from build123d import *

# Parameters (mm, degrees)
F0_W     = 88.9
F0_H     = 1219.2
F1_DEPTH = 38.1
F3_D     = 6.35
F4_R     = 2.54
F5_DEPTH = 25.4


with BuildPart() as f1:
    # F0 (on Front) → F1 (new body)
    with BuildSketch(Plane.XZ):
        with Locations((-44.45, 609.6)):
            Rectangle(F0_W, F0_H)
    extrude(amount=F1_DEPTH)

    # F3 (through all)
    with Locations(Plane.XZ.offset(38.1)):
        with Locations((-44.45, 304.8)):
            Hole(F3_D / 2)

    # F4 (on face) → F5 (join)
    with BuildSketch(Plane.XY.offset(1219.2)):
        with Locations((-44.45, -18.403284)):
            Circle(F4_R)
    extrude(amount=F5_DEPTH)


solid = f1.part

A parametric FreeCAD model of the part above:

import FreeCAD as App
import Part
import Sketcher

V = App.Vector
Q = App.Units.Quantity

doc = App.newDocument("Part")
body = doc.addObject("PartDesign::Body", "Body")

# Sketch on XZ plane
sketch1 = body.newObject("Sketcher::SketchObject", "Sketch")
sketch1.AttachmentSupport = (doc.getObject("XZ_Plane"), [""])
sketch1.MapMode = "FlatFace"
sketch1.addGeometry(Part.LineSegment(V(-89, 1219, 0), V(-89, 0, 0)), False)
sketch1.addGeometry(Part.LineSegment(V(-89, 0, 0), V(0, 0, 0)), False)
sketch1.addGeometry(Part.LineSegment(V(0, 0, 0), V(0, 1219, 0)), False)
sketch1.addGeometry(Part.LineSegment(V(0, 1219, 0), V(-89, 1219, 0)), False)
sketch1.addConstraint(Sketcher.Constraint("Coincident", 0, 2, 1, 1))
sketch1.addConstraint(Sketcher.Constraint("Coincident", 1, 2, 2, 1))
sketch1.addConstraint(Sketcher.Constraint("Coincident", 2, 2, 3, 1))
sketch1.addConstraint(Sketcher.Constraint("Coincident", 3, 2, 0, 1))
sketch1.addConstraint(Sketcher.Constraint("Vertical", 0))
sketch1.addConstraint(Sketcher.Constraint("Horizontal", 1))
sketch1.addConstraint(Sketcher.Constraint("Vertical", 2))
sketch1.addConstraint(Sketcher.Constraint("Horizontal", 3))
sketch1.addConstraint(Sketcher.Constraint("Coincident", 1, 2, -1, 1))
sketch1.addConstraint(Sketcher.Constraint("DistanceY", 0, 2, 0, 1, Q("48 in")))
sketch1.addConstraint(Sketcher.Constraint("DistanceX", 1, 1, 1, 2, Q("3.5 in")))
pad1 = body.newObject("PartDesign::Pad", "Pad")
pad1.Profile = sketch1
pad1.Length = Q("1.5 in")

# Sketch on XZ plane
sketch2 = body.newObject("Sketcher::SketchObject", "Sketch001")
sketch2.AttachmentSupport = (doc.getObject("XZ_Plane"), [""])
sketch2.MapMode = "FlatFace"
sketch2.AttachmentOffset = App.Placement(V(0, 0, 1.5 * 25.4), App.Rotation())
sketch2.addGeometry(Part.Circle(V(-44.5, 304.8, 0), V(0, 0, 1), 3.2), False)
sketch2.addConstraint(Sketcher.Constraint("Diameter", 0, Q("0.25 in")))
sketch2.addConstraint(Sketcher.Constraint("DistanceY", -1, 1, 0, 3, Q("12 in")))
sketch2.addConstraint(Sketcher.Constraint("DistanceX", 0, 3, -1, 1, Q("1.75 in")))
doc.recompute()
hole = body.newObject("PartDesign::Hole", "Hole")
hole.Profile = sketch2
hole.ThreadType = "None"
hole.Diameter = Q("0.25 in")
hole.DepthType = "ThroughAll"

# Sketch on XY plane
sketch3 = body.newObject("Sketcher::SketchObject", "Sketch002")
sketch3.AttachmentSupport = (doc.getObject("XY_Plane"), [""])
sketch3.MapMode = "FlatFace"
sketch3.AttachmentOffset = App.Placement(V(0, 0, 48 * 25.4), App.Rotation())
sketch3.addGeometry(Part.Circle(V(-44.5, -18.4, 0), V(0, 0, 1), 2.5), False)
sketch3.addConstraint(Sketcher.Constraint("Diameter", 0, Q("0.2 in")))
sketch3.addConstraint(Sketcher.Constraint("DistanceX", 0, 3, -1, 1, Q("1.75 in")))
sketch3.addConstraint(Sketcher.Constraint("DistanceY", 0, 3, -1, 1, Q("18.403284 mm")))
pad2 = body.newObject("PartDesign::Pad", "Pad001")
pad2.Profile = sketch3
pad2.Length = Q("1 in")

doc.recompute()
